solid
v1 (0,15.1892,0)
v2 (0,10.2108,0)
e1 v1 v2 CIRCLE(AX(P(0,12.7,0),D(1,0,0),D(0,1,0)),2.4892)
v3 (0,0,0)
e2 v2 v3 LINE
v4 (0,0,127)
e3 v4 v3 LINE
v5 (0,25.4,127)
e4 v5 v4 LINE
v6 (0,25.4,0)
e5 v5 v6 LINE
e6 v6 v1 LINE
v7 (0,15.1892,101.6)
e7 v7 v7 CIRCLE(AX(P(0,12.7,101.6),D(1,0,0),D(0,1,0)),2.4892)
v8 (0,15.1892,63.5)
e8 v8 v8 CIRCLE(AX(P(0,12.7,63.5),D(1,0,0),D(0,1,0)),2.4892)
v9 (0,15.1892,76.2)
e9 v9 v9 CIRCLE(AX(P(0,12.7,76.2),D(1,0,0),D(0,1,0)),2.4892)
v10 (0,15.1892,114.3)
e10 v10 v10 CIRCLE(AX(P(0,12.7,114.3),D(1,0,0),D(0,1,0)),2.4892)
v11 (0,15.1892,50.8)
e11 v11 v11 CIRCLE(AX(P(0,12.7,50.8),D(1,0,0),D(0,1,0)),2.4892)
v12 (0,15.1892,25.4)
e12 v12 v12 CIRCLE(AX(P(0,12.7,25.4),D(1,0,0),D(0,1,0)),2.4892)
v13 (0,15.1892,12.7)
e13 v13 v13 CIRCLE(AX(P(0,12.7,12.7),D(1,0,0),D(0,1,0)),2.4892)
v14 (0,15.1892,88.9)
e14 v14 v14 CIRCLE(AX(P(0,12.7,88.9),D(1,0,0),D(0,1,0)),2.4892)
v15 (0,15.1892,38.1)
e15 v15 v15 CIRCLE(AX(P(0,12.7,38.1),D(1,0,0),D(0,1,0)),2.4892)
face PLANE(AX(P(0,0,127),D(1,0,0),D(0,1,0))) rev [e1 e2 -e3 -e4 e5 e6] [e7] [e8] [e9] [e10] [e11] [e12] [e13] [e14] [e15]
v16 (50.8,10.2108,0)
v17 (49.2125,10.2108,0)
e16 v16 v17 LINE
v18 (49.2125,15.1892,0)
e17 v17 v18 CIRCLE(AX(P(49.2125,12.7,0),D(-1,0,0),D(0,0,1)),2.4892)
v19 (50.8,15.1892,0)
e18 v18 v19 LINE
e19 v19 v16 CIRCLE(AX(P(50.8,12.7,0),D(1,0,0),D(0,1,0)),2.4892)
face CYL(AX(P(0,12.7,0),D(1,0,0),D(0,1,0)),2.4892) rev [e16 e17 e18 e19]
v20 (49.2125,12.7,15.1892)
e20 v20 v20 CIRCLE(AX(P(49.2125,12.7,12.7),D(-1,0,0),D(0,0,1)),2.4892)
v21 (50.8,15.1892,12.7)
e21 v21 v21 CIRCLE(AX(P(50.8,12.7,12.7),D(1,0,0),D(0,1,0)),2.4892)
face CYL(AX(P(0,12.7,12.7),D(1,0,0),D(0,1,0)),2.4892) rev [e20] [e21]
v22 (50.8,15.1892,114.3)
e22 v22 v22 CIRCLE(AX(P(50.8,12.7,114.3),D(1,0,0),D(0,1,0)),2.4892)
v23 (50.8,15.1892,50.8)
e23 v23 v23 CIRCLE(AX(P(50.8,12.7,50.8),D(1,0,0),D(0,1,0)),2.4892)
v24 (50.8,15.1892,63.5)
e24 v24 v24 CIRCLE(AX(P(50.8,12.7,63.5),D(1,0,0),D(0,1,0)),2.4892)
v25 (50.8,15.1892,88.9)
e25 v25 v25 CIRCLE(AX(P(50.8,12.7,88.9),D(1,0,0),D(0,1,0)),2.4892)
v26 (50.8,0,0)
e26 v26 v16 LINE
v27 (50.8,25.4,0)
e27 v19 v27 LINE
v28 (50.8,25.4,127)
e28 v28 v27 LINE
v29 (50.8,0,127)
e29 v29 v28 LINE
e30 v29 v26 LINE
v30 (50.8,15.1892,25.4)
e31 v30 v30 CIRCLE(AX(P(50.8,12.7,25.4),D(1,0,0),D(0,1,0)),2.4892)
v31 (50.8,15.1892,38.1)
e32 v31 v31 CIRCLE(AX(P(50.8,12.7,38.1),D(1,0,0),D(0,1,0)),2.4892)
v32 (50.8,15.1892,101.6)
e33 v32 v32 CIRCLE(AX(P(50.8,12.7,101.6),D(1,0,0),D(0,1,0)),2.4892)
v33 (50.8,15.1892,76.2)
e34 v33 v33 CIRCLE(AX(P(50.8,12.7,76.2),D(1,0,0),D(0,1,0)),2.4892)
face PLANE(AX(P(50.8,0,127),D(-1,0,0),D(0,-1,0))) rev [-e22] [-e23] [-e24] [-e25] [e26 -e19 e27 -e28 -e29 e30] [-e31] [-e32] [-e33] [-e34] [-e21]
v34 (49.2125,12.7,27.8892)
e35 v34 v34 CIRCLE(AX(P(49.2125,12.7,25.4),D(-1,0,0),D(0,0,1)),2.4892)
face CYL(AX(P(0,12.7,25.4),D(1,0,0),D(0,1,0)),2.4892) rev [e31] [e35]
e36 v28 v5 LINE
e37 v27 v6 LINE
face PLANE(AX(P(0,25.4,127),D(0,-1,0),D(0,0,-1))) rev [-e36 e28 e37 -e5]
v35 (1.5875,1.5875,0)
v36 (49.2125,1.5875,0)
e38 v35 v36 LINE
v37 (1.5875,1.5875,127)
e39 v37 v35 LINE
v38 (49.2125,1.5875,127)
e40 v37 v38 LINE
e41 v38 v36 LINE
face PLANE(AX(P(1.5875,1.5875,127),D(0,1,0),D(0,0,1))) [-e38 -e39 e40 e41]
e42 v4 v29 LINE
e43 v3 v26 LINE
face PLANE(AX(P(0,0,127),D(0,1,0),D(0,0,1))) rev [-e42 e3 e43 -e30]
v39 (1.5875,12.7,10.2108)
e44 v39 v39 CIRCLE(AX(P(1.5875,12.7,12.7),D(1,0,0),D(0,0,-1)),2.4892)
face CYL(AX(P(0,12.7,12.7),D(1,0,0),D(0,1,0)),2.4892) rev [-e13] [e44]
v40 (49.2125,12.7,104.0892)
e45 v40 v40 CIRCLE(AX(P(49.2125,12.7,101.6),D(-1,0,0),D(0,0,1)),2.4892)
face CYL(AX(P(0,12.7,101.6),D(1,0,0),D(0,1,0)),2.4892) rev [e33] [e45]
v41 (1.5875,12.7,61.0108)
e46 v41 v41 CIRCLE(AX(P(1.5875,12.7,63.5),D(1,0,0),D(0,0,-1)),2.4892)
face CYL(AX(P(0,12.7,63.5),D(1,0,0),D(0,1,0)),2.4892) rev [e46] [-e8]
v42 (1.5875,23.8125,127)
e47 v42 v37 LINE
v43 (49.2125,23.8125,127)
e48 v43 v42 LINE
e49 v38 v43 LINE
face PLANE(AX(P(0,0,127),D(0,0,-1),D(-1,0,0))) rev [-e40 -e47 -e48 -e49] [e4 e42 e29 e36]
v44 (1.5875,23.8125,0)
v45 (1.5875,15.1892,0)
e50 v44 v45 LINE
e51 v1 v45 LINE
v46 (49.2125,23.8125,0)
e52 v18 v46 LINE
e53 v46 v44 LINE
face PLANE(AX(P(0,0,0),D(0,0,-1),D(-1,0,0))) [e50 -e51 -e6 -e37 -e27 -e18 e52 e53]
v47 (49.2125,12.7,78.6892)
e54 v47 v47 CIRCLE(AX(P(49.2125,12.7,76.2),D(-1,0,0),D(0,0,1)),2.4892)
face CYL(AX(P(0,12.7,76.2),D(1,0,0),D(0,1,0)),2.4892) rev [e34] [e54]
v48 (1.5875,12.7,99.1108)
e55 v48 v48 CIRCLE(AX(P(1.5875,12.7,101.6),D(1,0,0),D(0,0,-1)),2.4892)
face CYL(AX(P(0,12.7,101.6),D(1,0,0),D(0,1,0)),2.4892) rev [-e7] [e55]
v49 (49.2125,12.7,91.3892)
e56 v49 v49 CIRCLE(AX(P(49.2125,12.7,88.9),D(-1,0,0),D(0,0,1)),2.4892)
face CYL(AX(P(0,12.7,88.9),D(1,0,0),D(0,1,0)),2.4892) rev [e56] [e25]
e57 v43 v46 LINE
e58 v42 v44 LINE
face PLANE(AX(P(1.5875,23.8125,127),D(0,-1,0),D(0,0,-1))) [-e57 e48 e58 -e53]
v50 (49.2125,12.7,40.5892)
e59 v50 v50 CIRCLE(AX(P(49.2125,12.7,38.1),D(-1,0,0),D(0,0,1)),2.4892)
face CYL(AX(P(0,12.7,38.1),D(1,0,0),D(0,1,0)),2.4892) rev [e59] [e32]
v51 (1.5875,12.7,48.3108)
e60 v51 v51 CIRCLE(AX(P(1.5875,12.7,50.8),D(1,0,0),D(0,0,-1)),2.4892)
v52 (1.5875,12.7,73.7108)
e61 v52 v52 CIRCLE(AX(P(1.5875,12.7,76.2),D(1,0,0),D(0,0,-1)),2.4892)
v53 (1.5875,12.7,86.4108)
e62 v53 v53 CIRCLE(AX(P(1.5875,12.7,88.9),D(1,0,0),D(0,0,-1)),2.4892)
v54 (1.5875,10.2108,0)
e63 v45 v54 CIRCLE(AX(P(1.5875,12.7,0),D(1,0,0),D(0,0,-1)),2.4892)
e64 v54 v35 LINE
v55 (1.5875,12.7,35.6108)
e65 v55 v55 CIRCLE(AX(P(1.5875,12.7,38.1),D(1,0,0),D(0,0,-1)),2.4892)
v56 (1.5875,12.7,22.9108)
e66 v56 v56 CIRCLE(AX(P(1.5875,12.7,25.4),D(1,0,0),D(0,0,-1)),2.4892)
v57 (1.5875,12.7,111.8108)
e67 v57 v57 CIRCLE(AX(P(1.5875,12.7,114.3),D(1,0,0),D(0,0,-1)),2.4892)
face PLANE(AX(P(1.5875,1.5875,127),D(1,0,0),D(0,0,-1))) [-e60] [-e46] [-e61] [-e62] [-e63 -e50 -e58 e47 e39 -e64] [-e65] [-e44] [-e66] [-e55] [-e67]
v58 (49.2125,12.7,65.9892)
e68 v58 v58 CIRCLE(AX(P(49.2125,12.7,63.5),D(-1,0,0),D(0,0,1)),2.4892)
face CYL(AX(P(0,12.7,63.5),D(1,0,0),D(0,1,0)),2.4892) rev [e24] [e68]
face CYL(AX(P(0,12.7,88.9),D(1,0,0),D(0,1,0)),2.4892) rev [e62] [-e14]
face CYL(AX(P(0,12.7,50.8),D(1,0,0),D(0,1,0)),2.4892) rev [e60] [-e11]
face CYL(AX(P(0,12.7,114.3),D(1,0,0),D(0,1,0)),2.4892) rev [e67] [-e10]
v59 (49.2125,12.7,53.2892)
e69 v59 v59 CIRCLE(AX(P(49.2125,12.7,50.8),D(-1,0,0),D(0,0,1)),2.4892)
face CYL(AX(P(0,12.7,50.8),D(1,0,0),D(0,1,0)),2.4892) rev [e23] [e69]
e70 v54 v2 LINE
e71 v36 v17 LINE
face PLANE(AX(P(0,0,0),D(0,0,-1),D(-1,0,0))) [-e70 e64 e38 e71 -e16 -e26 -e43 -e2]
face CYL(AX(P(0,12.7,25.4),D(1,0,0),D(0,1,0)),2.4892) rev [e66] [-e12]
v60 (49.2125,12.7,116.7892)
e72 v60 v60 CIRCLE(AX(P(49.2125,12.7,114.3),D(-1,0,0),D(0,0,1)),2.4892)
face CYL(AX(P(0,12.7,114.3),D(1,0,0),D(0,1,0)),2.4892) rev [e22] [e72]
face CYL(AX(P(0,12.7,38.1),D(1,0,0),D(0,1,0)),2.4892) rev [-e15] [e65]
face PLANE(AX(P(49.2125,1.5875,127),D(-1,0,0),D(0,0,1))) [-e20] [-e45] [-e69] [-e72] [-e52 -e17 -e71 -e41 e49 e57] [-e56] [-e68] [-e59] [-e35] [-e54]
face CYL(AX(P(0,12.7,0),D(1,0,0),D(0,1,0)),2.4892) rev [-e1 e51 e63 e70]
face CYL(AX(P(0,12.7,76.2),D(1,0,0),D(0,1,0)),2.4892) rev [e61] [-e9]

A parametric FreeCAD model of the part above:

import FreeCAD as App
import Part
import Sketcher
from FreeCAD import Vector
Q = App.Units.Quantity

doc = App.newDocument("Part")
body = doc.addObject("PartDesign::Body", "Body")

sketch1 = doc.addObject("Sketcher::SketchObject", "Sketch")
body.addObject(sketch1)
sketch1.AttachmentSupport = (doc.XY_Plane, [""])
sketch1.MapMode = "FlatFace"
sketch1.addGeometry(Part.LineSegment(Vector(0, 25, 0), Vector(0, 0, 0)), False)
sketch1.addGeometry(Part.LineSegment(Vector(0, 0, 0), Vector(51, 0, 0)), False)
sketch1.addGeometry(Part.LineSegment(Vector(51, 0, 0), Vector(51, 25, 0)), False)
sketch1.addGeometry(Part.LineSegment(Vector(51, 25, 0), Vector(0, 25, 0)), False)
sketch1.addGeometry(Part.LineSegment(Vector(49, 2, 0), Vector(2, 2, 0)), False)
sketch1.addGeometry(Part.LineSegment(Vector(2, 2, 0), Vector(2, 24, 0)), False)
sketch1.addGeometry(Part.LineSegment(Vector(2, 24, 0), Vector(49, 24, 0)), False)
sketch1.addGeometry(Part.LineSegment(Vector(49, 24, 0), Vector(49, 2, 0)), False)
sketch1.addConstraint(Sketcher.Constraint("Coincident", 0, 2, 1, 1))
sketch1.addConstraint(Sketcher.Constraint("Coincident", 1, 2, 2, 1))
sketch1.addConstraint(Sketcher.Constraint("Coincident", 2, 2, 3, 1))
sketch1.addConstraint(Sketcher.Constraint("Coincident", 3, 2, 0, 1))
sketch1.addConstraint(Sketcher.Constraint("Coincident", 4, 2, 5, 1))
sketch1.addConstraint(Sketcher.Constraint("Coincident", 5, 2, 6, 1))
sketch1.addConstraint(Sketcher.Constraint("Coincident", 6, 2, 7, 1))
sketch1.addConstraint(Sketcher.Constraint("Coincident", 7, 2, 4, 1))
sketch1.addConstraint(Sketcher.Constraint("Vertical", 0))
sketch1.addConstraint(Sketcher.Constraint("Horizontal", 1))
sketch1.addConstraint(Sketcher.Constraint("Vertical", 2))
sketch1.addConstraint(Sketcher.Constraint("Horizontal", 3))
sketch1.addConstraint(Sketcher.Constraint("Horizontal", 4))
sketch1.addConstraint(Sketcher.Constraint("Vertical", 5))
sketch1.addConstraint(Sketcher.Constraint("Horizontal", 6))
sketch1.addConstraint(Sketcher.Constraint("Vertical", 7))
sketch1.addConstraint(Sketcher.Constraint("Coincident", 0, 2, -1, 1))
sketch1.addConstraint(Sketcher.Constraint("DistanceX", 1, 1, 1, 2, Q("2 in")))
sketch1.addConstraint(Sketcher.Constraint("DistanceY", 0, 2, 0, 1, Q("1 in")))
sketch1.addConstraint(Sketcher.Constraint("DistanceX", 4, 2, 4, 1, Q("1.875 in")))
sketch1.addConstraint(Sketcher.Constraint("DistanceY", 5, 1, 5, 2, Q("0.875 in")))
sketch1.addConstraint(Sketcher.Constraint("DistanceX", -1, 1, 4, 2, Q("0.0625 in")))
sketch1.addConstraint(Sketcher.Constraint("DistanceY", -1, 1, 4, 2, Q("0.0625 in")))
pad1 = doc.addObject("PartDesign::Pad", "Pad")
body.addObject(pad1)
pad1.Profile = sketch1
pad1.Length = Q("5 in")

sketch2 = doc.addObject("Sketcher::SketchObject", "Sketch001")
body.addObject(sketch2)
sketch2.AttachmentSupport = (doc.YZ_Plane, [""])
sketch2.MapMode = "FlatFace"
sketch2.AttachmentOffset = App.Placement(Vector(0, 0, 2 * 25.4), App.Rotation())
sketch2.addGeometry(Part.Circle(Vector(12.7, 114.3, 0), Vector(0, 0, 1), 2.5), False)
sketch2.addGeometry(Part.Circle(Vector(12.7, 101.6, 0), Vector(0, 0, 1), 2.5), False)
sketch2.addGeometry(Part.Circle(Vector(12.7, 88.9, 0), Vector(0, 0, 1), 2.5), False)
sketch2.addGeometry(Part.Circle(Vector(12.7, 76.2, 0), Vector(0, 0, 1), 2.5), False)
sketch2.addGeometry(Part.Circle(Vector(12.7, 63.5, 0), Vector(0, 0, 1), 2.5), False)
sketch2.addGeometry(Part.Circle(Vector(12.7, 50.8, 0), Vector(0, 0, 1), 2.5), False)
sketch2.addGeometry(Part.Circle(Vector(12.7, 38.1, 0), Vector(0, 0, 1), 2.5), False)
sketch2.addGeometry(Part.Circle(Vector(12.7, 25.4, 0), Vector(0, 0, 1), 2.5), False)
sketch2.addGeometry(Part.Circle(Vector(12.7, 12.7, 0), Vector(0, 0, 1), 2.5), False)
sketch2.addGeometry(Part.Circle(Vector(12.7, 0, 0), Vector(0, 0, 1), 2.5), False)
sketch2.addGeometry(Part.Circle(Vector(12.7, -12.7, 0), Vector(0, 0, 1), 2.5), False)
sketch2.addConstraint(Sketcher.Constraint("Equal", 0, 1))
sketch2.addConstraint(Sketcher.Constraint("Equal", 1, 2))
sketch2.addConstraint(Sketcher.Constraint("Equal", 2, 3))
sketch2.addConstraint(Sketcher.Constraint("Equal", 3, 4))
sketch2.addConstraint(Sketcher.Constraint("Equal", 4, 5))
sketch2.addConstraint(Sketcher.Constraint("Equal", 5, 6))
sketch2.addConstraint(Sketcher.Constraint("Equal", 6, 7))
sketch2.addConstraint(Sketcher.Constraint("Equal", 7, 8))
sketch2.addConstraint(Sketcher.Constraint("Equal", 8, 9))
sketch2.addConstraint(Sketcher.Constraint("Equal", 9, 10))
sketch2.addConstraint(Sketcher.Constraint("Symmetric", 8, 3, 10, 3, -1))
sketch2.addConstraint(Sketcher.Constraint("PointOnObject", 9, 3, -1))
sketch2.addConstraint(Sketcher.Constraint("Vertical", 0, 3, 1, 3))
sketch2.addConstraint(Sketcher.Constraint("Vertical", 1, 3, 2, 3))
sketch2.addConstraint(Sketcher.Constraint("Vertical", 2, 3, 3, 3))
sketch2.addConstraint(Sketcher.Constraint("Vertical", 3, 3, 4, 3))
sketch2.addConstraint(Sketcher.Constraint("Vertical", 4, 3, 5, 3))
sketch2.addConstraint(Sketcher.Constraint("Vertical", 5, 3, 6, 3))
sketch2.addConstraint(Sketcher.Constraint("Vertical", 6, 3, 7, 3))
sketch2.addConstraint(Sketcher.Constraint("Vertical", 7, 3, 8, 3))
sketch2.addConstraint(Sketcher.Constraint("Vertical", 8, 3, 9, 3))
sketch2.addConstraint(Sketcher.Constraint("Diameter", 0, Q("0.196 in")))
sketch2.addConstraint(Sketcher.Constraint("DistanceY", -1, 1, 1, 3, Q("4 in")))
sketch2.addConstraint(Sketcher.Constraint("DistanceY", -1, 1, 3, 3, Q("3 in")))
sketch2.addConstraint(Sketcher.Constraint("DistanceY", -1, 1, 5, 3, Q("2 in")))
sketch2.addConstraint(Sketcher.Constraint("DistanceY", -1, 1, 7, 3, Q("1 in")))
sketch2.addConstraint(Sketcher.Constraint("DistanceY", 2, 3, 0, 3, Q("1 in")))
sketch2.addConstraint(Sketcher.Constraint("DistanceY", 4, 3, 2, 3, Q("1 in")))
sketch2.addConstraint(Sketcher.Constraint("DistanceY", 6, 3, 4, 3, Q("1 in")))
sketch2.addConstraint(Sketcher.Constraint("DistanceY", 8, 3, 6, 3, Q("1 in")))
sketch2.addConstraint(Sketcher.Constraint("DistanceY", 10, 3, 8, 3, Q("1 in")))
sketch2.addConstraint(Sketcher.Constraint("DistanceX", -1, 1, 0, 3, Q("0.5 in")))
pocket1 = doc.addObject("PartDesign::Pocket", "Pocket")
body.addObject(pocket1)
pocket1.Profile = sketch2
pocket1.Type = "ThroughAll"

doc.recompute()
